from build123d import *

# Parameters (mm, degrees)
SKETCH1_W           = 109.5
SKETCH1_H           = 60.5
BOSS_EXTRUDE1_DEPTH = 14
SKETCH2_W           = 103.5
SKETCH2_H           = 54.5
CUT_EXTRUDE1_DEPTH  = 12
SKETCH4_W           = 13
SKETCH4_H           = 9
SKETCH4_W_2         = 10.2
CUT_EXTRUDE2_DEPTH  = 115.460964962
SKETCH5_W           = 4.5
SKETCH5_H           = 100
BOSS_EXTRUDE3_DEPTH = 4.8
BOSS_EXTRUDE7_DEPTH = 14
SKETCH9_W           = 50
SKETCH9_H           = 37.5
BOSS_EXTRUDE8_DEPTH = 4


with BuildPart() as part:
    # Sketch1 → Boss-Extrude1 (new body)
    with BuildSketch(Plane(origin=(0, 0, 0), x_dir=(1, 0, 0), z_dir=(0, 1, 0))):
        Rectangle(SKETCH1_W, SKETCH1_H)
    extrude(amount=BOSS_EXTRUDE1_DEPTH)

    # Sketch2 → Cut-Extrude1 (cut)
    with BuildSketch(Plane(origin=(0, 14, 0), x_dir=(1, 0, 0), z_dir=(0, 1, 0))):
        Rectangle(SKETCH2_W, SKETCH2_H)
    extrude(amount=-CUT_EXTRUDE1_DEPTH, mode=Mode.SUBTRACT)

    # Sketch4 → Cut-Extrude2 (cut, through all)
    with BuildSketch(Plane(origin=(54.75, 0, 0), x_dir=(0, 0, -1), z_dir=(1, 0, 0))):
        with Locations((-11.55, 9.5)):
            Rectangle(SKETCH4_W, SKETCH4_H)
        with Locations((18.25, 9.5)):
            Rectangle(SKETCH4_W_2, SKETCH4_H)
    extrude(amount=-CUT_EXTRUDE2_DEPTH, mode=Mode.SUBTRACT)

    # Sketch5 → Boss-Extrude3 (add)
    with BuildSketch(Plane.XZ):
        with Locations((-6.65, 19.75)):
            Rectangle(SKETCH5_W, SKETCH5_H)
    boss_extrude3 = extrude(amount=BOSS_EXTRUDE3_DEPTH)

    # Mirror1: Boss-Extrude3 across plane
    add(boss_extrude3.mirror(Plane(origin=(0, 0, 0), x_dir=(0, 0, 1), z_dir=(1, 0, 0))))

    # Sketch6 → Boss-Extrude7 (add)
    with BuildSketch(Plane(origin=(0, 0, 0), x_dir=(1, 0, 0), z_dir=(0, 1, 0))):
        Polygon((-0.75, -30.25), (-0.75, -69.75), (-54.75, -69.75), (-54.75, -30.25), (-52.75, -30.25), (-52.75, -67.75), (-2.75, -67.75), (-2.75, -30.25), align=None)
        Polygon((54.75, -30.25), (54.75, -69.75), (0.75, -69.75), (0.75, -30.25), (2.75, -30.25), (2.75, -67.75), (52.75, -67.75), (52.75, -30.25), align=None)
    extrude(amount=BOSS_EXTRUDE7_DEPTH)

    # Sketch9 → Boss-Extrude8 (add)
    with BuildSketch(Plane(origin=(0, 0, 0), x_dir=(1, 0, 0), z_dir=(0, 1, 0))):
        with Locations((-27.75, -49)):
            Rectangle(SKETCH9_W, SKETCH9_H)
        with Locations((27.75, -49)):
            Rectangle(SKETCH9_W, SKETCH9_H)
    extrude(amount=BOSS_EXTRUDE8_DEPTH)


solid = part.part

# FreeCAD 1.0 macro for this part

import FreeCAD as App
import Part
import Sketcher
Q = App.Units.Quantity


def add_polygon(sketch, points):
    """Adds a closed chain of lines whose ends are joined by coincident constraints."""
    first, n = sketch.GeometryCount, len(points)
    for a, b in zip(points, points[1:] + points[:1]):
        sketch.addGeometry(Part.LineSegment(App.Vector(*a, 0), App.Vector(*b, 0)), False)
    for i in range(n):
        sketch.addConstraint(Sketcher.Constraint("Coincident", first + i, 2, first + (i + 1) % n, 1))

doc = App.newDocument("Part")
body = doc.addObject("PartDesign::Body", "Body")

# Sketch on XZ plane
sketch1 = body.newObject("Sketcher::SketchObject", "Sketch")
sketch1.AttachmentSupport = (doc.getObject("XZ_Plane"), [""])
sketch1.MapMode = "FlatFace"
add_polygon(sketch1, [(-55, -30), (-55, 30), (55, 30), (55, -30)])  # lines 0-3
sketch1.addConstraint(Sketcher.Constraint("Vertical", 0))
sketch1.addConstraint(Sketcher.Constraint("Horizontal", 1))
sketch1.addConstraint(Sketcher.Constraint("Vertical", 2))
sketch1.addConstraint(Sketcher.Constraint("Horizontal", 3))
sketch1.addConstraint(Sketcher.Constraint("Symmetric", 0, 2, 2, 2, -1, 1))
sketch1.addConstraint(Sketcher.Constraint("DistanceX", 1, 1, 1, 2, Q("109.5 mm")))
sketch1.addConstraint(Sketcher.Constraint("DistanceY", 0, 1, 0, 2, Q("60.5 mm")))
pad1 = body.newObject("PartDesign::Pad", "Pad")
pad1.Profile = sketch1
pad1.Length = 14
pad1.Reversed = True

# Sketch on XZ plane
sketch2 = body.newObject("Sketcher::SketchObject", "Sketch001")
sketch2.AttachmentSupport = (doc.getObject("XZ_Plane"), [""])
sketch2.MapMode = "FlatFace"
sketch2.AttachmentOffset = App.Placement(App.Vector(0, 0, -14), App.Rotation())
add_polygon(sketch2, [(-52, -27), (-52, 27), (52, 27), (52, -27)])  # lines 0-3
sketch2.addConstraint(Sketcher.Constraint("Vertical", 0))
sketch2.addConstraint(Sketcher.Constraint("Horizontal", 1))
sketch2.addConstraint(Sketcher.Constraint("Vertical", 2))
sketch2.addConstraint(Sketcher.Constraint("Horizontal", 3))
sketch2.addConstraint(Sketcher.Constraint("Symmetric", 0, 2, 2, 2, -1, 1))
sketch2.addConstraint(Sketcher.Constraint("DistanceX", 1, 1, 1, 2, Q("103.5 mm")))
sketch2.addConstraint(Sketcher.Constraint("DistanceY", 0, 1, 0, 2, Q("54.5 mm")))
pocket1 = body.newObject("PartDesign::Pocket", "Pocket")
pocket1.Profile = sketch2
pocket1.Length = 12
pocket1.Reversed = True

# Sketch on YZ plane
sketch3 = body.newObject("Sketcher::SketchObject", "Sketch002")
sketch3.AttachmentSupport = (doc.getObject("YZ_Plane"), [""])
sketch3.MapMode = "FlatFace"
sketch3.AttachmentOffset = App.Placement(App.Vector(0, 0, 54.75), App.Rotation())
add_polygon(sketch3, [(14, 18), (5, 18), (5, 5), (14, 5)])  # lines 0-3
add_polygon(sketch3, [(14, -13), (5, -13), (5, -23), (14, -23)])  # lines 4-7
sketch3.addConstraint(Sketcher.Constraint("Horizontal", 0))
sketch3.addConstraint(Sketcher.Constraint("Vertical", 1))
sketch3.addConstraint(Sketcher.Constraint("Horizontal", 2))
sketch3.addConstraint(Sketcher.Constraint("Vertical", 3))
sketch3.addConstraint(Sketcher.Constraint("Horizontal", 4))
sketch3.addConstraint(Sketcher.Constraint("Vertical", 5))
sketch3.addConstraint(Sketcher.Constraint("Horizontal", 6))
sketch3.addConstraint(Sketcher.Constraint("Vertical", 7))
sketch3.addConstraint(Sketcher.Constraint("Vertical", 1, 2, 4, 2))
sketch3.addConstraint(Sketcher.Constraint("Vertical", 3, 2, 6, 2))
sketch3.addConstraint(Sketcher.Constraint("DistanceX", 0, 2, 0, 1, Q("9 mm")))
sketch3.addConstraint(Sketcher.Constraint("DistanceY", 1, 2, 1, 1, Q("13 mm")))
sketch3.addConstraint(Sketcher.Constraint("DistanceY", 5, 2, 5, 1, Q("10.2 mm")))
sketch3.addConstraint(Sketcher.Constraint("DistanceX", -1, 1, 0, 2, Q("5 mm")))
sketch3.addConstraint(Sketcher.Constraint("DistanceY", 4, 2, 1, 2, Q("18.2 mm")))
sketch3.addConstraint(Sketcher.Constraint("DistanceY", -1, 1, 0, 2, Q("18.05 mm")))
pocket2 = body.newObject("PartDesign::Pocket", "Pocket001")
pocket2.Profile = sketch3
pocket2.Type = "ThroughAll"

# Sketch on XZ plane
sketch4 = body.newObject("Sketcher::SketchObject", "Sketch003")
sketch4.AttachmentSupport = (doc.getObject("XZ_Plane"), [""])
sketch4.MapMode = "FlatFace"
add_polygon(sketch4, [(-8.9, 69.8), (-8.9, -30.2), (-4.4, -30.2), (-4.4, 69.8)])  # lines 0-3
sketch4.addConstraint(Sketcher.Constraint("Vertical", 0))
sketch4.addConstraint(Sketcher.Constraint("Horizontal", 1))
sketch4.addConstraint(Sketcher.Constraint("Vertical", 2))
sketch4.addConstraint(Sketcher.Constraint("Horizontal", 3))
sketch4.addConstraint(Sketcher.Constraint("DistanceY", 0, 2, 0, 1, Q("100 mm")))
sketch4.addConstraint(Sketcher.Constraint("DistanceX", 1, 1, 1, 2, Q("4.5 mm")))
sketch4.addConstraint(Sketcher.Constraint("DistanceX", 0, 2, -1, 1, Q("8.9 mm")))
sketch4.addConstraint(Sketcher.Constraint("DistanceY", 0, 2, -1, 1, Q("30.25 mm")))
pad2 = body.newObject("PartDesign::Pad", "Pad001")
pad2.Profile = sketch4
pad2.Length = 4.8
doc.recompute()

mirrored = body.newObject("PartDesign::Mirrored", "Mirrored")
mirrored.Originals = [pad2]
mirrored.MirrorPlane = (doc.getObject("YZ_Plane"), [""])
body.Tip = mirrored

# Sketch on XZ plane
sketch5 = body.newObject("Sketcher::SketchObject", "Sketch004")
sketch5.AttachmentSupport = (doc.getObject("XZ_Plane"), [""])
sketch5.MapMode = "FlatFace"
add_polygon(sketch5, [(-0.8, 69.8), (-0.8, 30.2), (-2.8, 30.2), (-2.8, 67.8), (-52.8, 67.8), (-52.8, 30.2), (-54.8, 30.2), (-54.8, 69.8)])  # lines 0-7
add_polygon(sketch5, [(54.8, 69.8), (54.8, 30.2), (52.8, 30.2), (52.8, 67.8), (2.8, 67.8), (2.8, 30.2), (0.8, 30.2), (0.8, 69.8)])  # lines 8-15
sketch5.addConstraint(Sketcher.Constraint("Vertical", 0))
sketch5.addConstraint(Sketcher.Constraint("Horizontal", 1))
sketch5.addConstraint(Sketcher.Constraint("Vertical", 2))
sketch5.addConstraint(Sketcher.Constraint("Horizontal", 3))
sketch5.addConstraint(Sketcher.Constraint("Vertical", 4))
sketch5.addConstraint(Sketcher.Constraint("Horizontal", 5))
sketch5.addConstraint(Sketcher.Constraint("Vertical", 6))
sketch5.addConstraint(Sketcher.Constraint("Horizontal", 7))
sketch5.addConstraint(Sketcher.Constraint("Vertical", 8))
sketch5.addConstraint(Sketcher.Constraint("Horizontal", 9))
sketch5.addConstraint(Sketcher.Constraint("Vertical", 10))
sketch5.addConstraint(Sketcher.Constraint("Horizontal", 11))
sketch5.addConstraint(Sketcher.Constraint("Vertical", 12))
sketch5.addConstraint(Sketcher.Constraint("Horizontal", 13))
sketch5.addConstraint(Sketcher.Constraint("Vertical", 14))
sketch5.addConstraint(Sketcher.Constraint("Horizontal", 15))
sketch5.addConstraint(Sketcher.Constraint("Symmetric", 5, 2, 8, 2, -2))
sketch5.addConstraint(Sketcher.Constraint("Symmetric", 3, 2, 10, 2, -2))
sketch5.addConstraint(Sketcher.Constraint("Symmetric", 1, 2, 12, 2, -2))
sketch5.addConstraint(Sketcher.Constraint("Symmetric", 7, 2, 14, 2, -2))
sketch5.addConstraint(Sketcher.Constraint("Horizontal", 1, 2, 4, 2))
sketch5.addConstraint(Sketcher.Constraint("Equal", 1, 5))
sketch5.addConstraint(Sketcher.Constraint("DistanceX", 1, 2, 1, 1, Q("2 mm")))
sketch5.addConstraint(Sketcher.Constraint("DistanceX", 3, 2, 3, 1, Q("50 mm")))
sketch5.addConstraint(Sketcher.Constraint("DistanceY", 0, 2, 0, 1, Q("39.5 mm")))
sketch5.addConstraint(Sketcher.Constraint("DistanceY", 2, 1, 2, 2, Q("37.5 mm")))
sketch5.addConstraint(Sketcher.Constraint("DistanceX", 0, 2, 8, 2, Q("55.5 mm")))
sketch5.addConstraint(Sketcher.Constraint("DistanceY", -1, 1, 0, 2, Q("30.25 mm")))
pad3 = body.newObject("PartDesign::Pad", "Pad002")
pad3.Profile = sketch5
pad3.Length = 14
pad3.Reversed = True

# Sketch on XZ plane
sketch6 = body.newObject("Sketcher::SketchObject", "Sketch005")
sketch6.AttachmentSupport = (doc.getObject("XZ_Plane"), [""])
sketch6.MapMode = "FlatFace"
add_polygon(sketch6, [(-53, 30), (-53, 68), (-3, 68), (-3, 30)])  # lines 0-3
add_polygon(sketch6, [(3, 30), (3, 68), (53, 68), (53, 30)])  # lines 4-7
sketch6.addConstraint(Sketcher.Constraint("Vertical", 0))
sketch6.addConstraint(Sketcher.Constraint("Horizontal", 1))
sketch6.addConstraint(Sketcher.Constraint("Vertical", 2))
sketch6.addConstraint(Sketcher.Constraint("Horizontal", 3))
sketch6.addConstraint(Sketcher.Constraint("Vertical", 4))
sketch6.addConstraint(Sketcher.Constraint("Horizontal", 5))
sketch6.addConstraint(Sketcher.Constraint("Vertical", 6))
sketch6.addConstraint(Sketcher.Constraint("Horizontal", 7))
sketch6.addConstraint(Sketcher.Constraint("Symmetric", 1, 2, 4, 2, -2))
sketch6.addConstraint(Sketcher.Constraint("Symmetric", 3, 2, 6, 2, -2))
sketch6.addConstraint(Sketcher.Constraint("DistanceX", 1, 1, 1, 2, Q("50 mm")))
sketch6.addConstraint(Sketcher.Constraint("DistanceY", 0, 1, 0, 2, Q("37.5 mm")))
sketch6.addConstraint(Sketcher.Constraint("DistanceX", 1, 2, 4, 2, Q("5.5 mm")))
sketch6.addConstraint(Sketcher.Constraint("DistanceY", -1, 1, 0, 2, Q("67.75 mm")))
pad4 = body.newObject("PartDesign::Pad", "Pad003")
pad4.Profile = sketch6
pad4.Length = 4
pad4.Reversed = True

doc.recompute()
